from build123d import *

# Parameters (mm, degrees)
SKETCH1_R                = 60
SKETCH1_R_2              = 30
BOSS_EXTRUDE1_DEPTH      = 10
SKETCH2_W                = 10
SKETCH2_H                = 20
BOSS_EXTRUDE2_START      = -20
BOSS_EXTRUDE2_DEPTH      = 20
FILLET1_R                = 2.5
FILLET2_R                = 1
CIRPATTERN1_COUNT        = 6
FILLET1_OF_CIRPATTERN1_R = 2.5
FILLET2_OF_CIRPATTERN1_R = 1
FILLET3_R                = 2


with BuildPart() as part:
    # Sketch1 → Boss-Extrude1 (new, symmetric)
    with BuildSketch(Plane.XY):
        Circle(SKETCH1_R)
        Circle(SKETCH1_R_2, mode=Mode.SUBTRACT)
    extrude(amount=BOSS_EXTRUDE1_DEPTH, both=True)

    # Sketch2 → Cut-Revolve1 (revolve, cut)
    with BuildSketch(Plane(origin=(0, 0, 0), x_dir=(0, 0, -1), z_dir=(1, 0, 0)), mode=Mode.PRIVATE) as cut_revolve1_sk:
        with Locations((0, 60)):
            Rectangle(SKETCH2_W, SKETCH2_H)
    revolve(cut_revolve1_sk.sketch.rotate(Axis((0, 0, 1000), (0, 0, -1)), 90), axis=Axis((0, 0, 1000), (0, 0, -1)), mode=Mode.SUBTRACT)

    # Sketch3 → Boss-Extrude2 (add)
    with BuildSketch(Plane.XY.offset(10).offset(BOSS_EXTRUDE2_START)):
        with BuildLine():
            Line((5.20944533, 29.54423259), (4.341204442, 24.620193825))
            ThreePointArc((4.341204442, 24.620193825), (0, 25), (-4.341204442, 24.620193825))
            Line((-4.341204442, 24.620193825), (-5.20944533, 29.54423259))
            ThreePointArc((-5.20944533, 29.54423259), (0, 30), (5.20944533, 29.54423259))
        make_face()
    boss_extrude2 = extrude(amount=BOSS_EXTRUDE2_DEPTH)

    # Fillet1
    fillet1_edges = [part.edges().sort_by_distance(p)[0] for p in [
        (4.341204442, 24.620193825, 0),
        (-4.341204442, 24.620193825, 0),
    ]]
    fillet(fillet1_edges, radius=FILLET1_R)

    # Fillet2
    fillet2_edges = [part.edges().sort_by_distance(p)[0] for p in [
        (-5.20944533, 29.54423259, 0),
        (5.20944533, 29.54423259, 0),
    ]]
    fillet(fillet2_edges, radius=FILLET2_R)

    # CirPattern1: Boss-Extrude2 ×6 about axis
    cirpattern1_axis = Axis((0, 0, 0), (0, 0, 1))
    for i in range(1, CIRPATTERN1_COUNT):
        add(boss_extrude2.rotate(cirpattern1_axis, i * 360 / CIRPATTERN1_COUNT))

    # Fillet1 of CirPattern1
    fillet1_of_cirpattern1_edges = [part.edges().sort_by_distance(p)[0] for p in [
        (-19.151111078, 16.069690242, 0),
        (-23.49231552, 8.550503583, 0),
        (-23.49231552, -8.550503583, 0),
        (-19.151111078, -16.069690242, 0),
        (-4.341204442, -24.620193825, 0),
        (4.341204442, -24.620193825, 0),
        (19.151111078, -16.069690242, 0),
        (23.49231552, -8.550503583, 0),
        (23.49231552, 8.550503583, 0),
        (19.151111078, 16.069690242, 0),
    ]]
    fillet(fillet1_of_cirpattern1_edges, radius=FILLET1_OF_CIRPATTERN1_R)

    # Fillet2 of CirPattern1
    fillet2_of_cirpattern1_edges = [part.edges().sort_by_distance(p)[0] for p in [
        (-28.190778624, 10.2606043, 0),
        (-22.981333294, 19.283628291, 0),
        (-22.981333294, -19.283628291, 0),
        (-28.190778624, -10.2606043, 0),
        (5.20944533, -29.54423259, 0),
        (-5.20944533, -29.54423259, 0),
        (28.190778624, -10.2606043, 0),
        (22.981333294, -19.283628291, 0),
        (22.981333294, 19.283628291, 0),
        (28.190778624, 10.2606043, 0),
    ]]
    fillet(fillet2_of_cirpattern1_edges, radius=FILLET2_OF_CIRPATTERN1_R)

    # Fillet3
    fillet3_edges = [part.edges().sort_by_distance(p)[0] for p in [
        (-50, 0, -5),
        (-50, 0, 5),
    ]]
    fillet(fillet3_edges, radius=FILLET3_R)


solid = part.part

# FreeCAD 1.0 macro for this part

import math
import FreeCAD as App
import Part
import Sketcher

V = App.Vector
Q = App.Units.Quantity


def edges_at(feature, points):
    """Names of the edges that pass closest to the given points."""
    edges = feature.Shape.Edges
    near = lambda p: min(range(len(edges)), key=lambda i: edges[i].distToShape(Part.Vertex(*p))[0])
    return sorted({f"Edge{near(p) + 1}" for p in points})


def add_polygon(sketch, points):
    """Adds a closed chain of lines whose ends are joined by coincident constraints."""
    first, n = sketch.GeometryCount, len(points)
    for a, b in zip(points, points[1:] + points[:1]):
        sketch.addGeometry(Part.LineSegment(App.Vector(*a, 0), App.Vector(*b, 0)), False)
    for i in range(n):
        sketch.addConstraint(Sketcher.Constraint("Coincident", first + i, 2, first + (i + 1) % n, 1))

doc = App.newDocument("Part")
params = doc.addObject("Spreadsheet::Sheet", "Params")
for row, (alias, value) in enumerate([
    ("sketch1_diameter", "120 mm"),
    ("sketch1_diameter2", "60 mm"),
    ("pad1_length", "20 mm"),
    ("sketch2_width", "20 mm"),
    ("sketch2_height", "10 mm"),
    ("groove_angle", "360 deg"),
    ("sketch3_radius", "30 mm"),
    ("sketch3_radius2", "25 mm"),
    ("pad2_length", "20 mm"),
    ("fillet_radius", "2.5 mm"),
    ("fillet2_radius", "1 mm"),
    ("fillet3_radius", "2.5 mm"),
    ("fillet4_radius", "1 mm"),
    ("fillet5_radius", "2 mm"),
], start=1):
    params.set(f"A{row}", alias)
    params.set(f"B{row}", "=" + value)
    params.setAlias(f"B{row}", alias)

body = doc.addObject("PartDesign::Body", "Body")

sketch1 = body.newObject("Sketcher::SketchObject", "Sketch")
sketch1.AttachmentSupport = (doc.getObject("XY_Plane"), [""])
sketch1.MapMode = "FlatFace"
sketch1.addGeometry(Part.Circle(V(0, 0, 0), V(0, 0, 1), 60), False)
sketch1.addGeometry(Part.Circle(V(0, 0, 0), V(0, 0, 1), 30), False)
sketch1.addConstraint(Sketcher.Constraint("Coincident", 0, 3, -1, 1))
sketch1.addConstraint(Sketcher.Constraint("Coincident", 1, 3, -1, 1))
sketch1.addConstraint(Sketcher.Constraint("Diameter", 0, 120.0))
sketch1.addConstraint(Sketcher.Constraint("Diameter", 1, 60.0))
sketch1.setExpression("Constraints[2]", "Params.sketch1_diameter")
sketch1.setExpression("Constraints[3]", "Params.sketch1_diameter2")
pad1 = body.newObject("PartDesign::Pad", "Pad")
pad1.Profile = sketch1
pad1.setExpression("Length", "Params.pad1_length")
pad1.Midplane = True

sketch2 = body.newObject("Sketcher::SketchObject", "Sketch001")
sketch2.AttachmentSupport = (doc.getObject("YZ_Plane"), [""])
sketch2.MapMode = "FlatFace"
add_polygon(sketch2, [(70, 5), (50, 5), (50, -5), (70, -5)])
sketch2.addConstraint(Sketcher.Constraint("Horizontal", 0))
sketch2.addConstraint(Sketcher.Constraint("Vertical", 1))
sketch2.addConstraint(Sketcher.Constraint("Horizontal", 2))
sketch2.addConstraint(Sketcher.Constraint("Vertical", 3))
sketch2.addConstraint(Sketcher.Constraint("DistanceX", 0, 2, 0, 1, 20.0))
sketch2.addConstraint(Sketcher.Constraint("DistanceY", 1, 2, 1, 1, 10.0))
sketch2.addConstraint(Sketcher.Constraint("DistanceX", -1, 1, 0, 2, 50.0))
sketch2.addConstraint(Sketcher.Constraint("DistanceY", -1, 1, 0, 2, 5.0))
sketch2.setExpression("Constraints[8]", "Params.sketch2_width")
sketch2.setExpression("Constraints[9]", "Params.sketch2_height")
groove = body.newObject("PartDesign::Groove", "Groove")
groove.Profile = sketch2
groove.ReferenceAxis = (sketch2, ["V_Axis"])
groove.setExpression("Angle", "Params.groove_angle")

sketch3 = body.newObject("Sketcher::SketchObject", "Sketch002")
sketch3.AttachmentSupport = (doc.getObject("XY_Plane"), [""])
sketch3.MapMode = "FlatFace"
sketch3.AttachmentOffset = App.Placement(V(0, 0, -10), App.Rotation())
sketch3.addGeometry(Part.LineSegment(V(4.3, 24.6, 0), V(5.2, 29.5, 0)), False)
sketch3.addGeometry(Part.ArcOfCircle(Part.Circle(V(0, 0, 0), V(0, 0, 1), 30), math.radians(80), math.radians(100)), False)
sketch3.addGeometry(Part.LineSegment(V(-5.2, 29.5, 0), V(-4.3, 24.6, 0)), False)
sketch3.addGeometry(Part.ArcOfCircle(Part.Circle(V(0, 0, 0), V(0, 0, 1), 25), math.radians(80), math.radians(100)), False)
sketch3.addConstraint(Sketcher.Constraint("Coincident", 0, 2, 1, 1))
sketch3.addConstraint(Sketcher.Constraint("Coincident", 1, 2, 2, 1))
sketch3.addConstraint(Sketcher.Constraint("Coincident", 2, 2, 3, 2))
sketch3.addConstraint(Sketcher.Constraint("Coincident", 3, 1, 0, 1))
sketch3.addConstraint(Sketcher.Constraint("Coincident", 1, 3, -1, 1))
sketch3.addConstraint(Sketcher.Constraint("Coincident", 3, 3, -1, 1))
sketch3.addConstraint(Sketcher.Constraint("Horizontal", 0, 2, 1, 2))
sketch3.addConstraint(Sketcher.Constraint("Horizontal", 2, 2, 3, 1))
sketch3.addConstraint(Sketcher.Constraint("Radius", 1, 30.0))
sketch3.addConstraint(Sketcher.Constraint("Radius", 3, 25.0))
sketch3.addConstraint(Sketcher.Constraint("Angle", 0, Q("80 deg")))
sketch3.addConstraint(Sketcher.Constraint("DistanceX", 1, 2, 0, 2, 10.418891))
sketch3.setExpression("Constraints[8]", "Params.sketch3_radius")
sketch3.setExpression("Constraints[9]", "Params.sketch3_radius2")
pad2 = body.newObject("PartDesign::Pad", "Pad001")
pad2.Profile = sketch3
pad2.setExpression("Length", "Params.pad2_length")
doc.recompute()

fillet = body.newObject("PartDesign::Fillet", "Fillet")
fillet.Base = (pad2, edges_at(pad2, [(4.341, 24.62, 0), (-4.341, 24.62, 0)]))
fillet.setExpression("Radius", "Params.fillet_radius")
doc.recompute()

fillet2 = body.newObject("PartDesign::Fillet", "Fillet001")
fillet2.Base = (fillet, edges_at(fillet, [(-5.209, 29.544, 0), (5.209, 29.544, 0)]))
fillet2.setExpression("Radius", "Params.fillet2_radius")
doc.recompute()

polarpattern = body.newObject("PartDesign::PolarPattern", "PolarPattern")
polarpattern.Originals = [pad2]
polarpattern.Axis = (doc.getObject("Z_Axis"), [""])
polarpattern.Angle = 360
polarpattern.Occurrences = 6
body.Tip = polarpattern
doc.recompute()

fillet3 = body.newObject("PartDesign::Fillet", "Fillet002")
fillet3.Base = (polarpattern, edges_at(polarpattern, [
    (-19.151, 16.07, 0),
    (-23.492, 8.551, 0),
    (-23.492, -8.551, 0),
    (-19.151, -16.07, 0),
    (-4.341, -24.62, 0),
    (4.341, -24.62, 0),
    (19.151, -16.07, 0),
    (23.492, -8.551, 0),
    (23.492, 8.551, 0),
    (19.151, 16.07, 0),
]))
fillet3.setExpression("Radius", "Params.fillet3_radius")
doc.recompute()

fillet4 = body.newObject("PartDesign::Fillet", "Fillet003")
fillet4.Base = (fillet3, edges_at(fillet3, [
    (-28.191, 10.261, 0),
    (-22.981, 19.284, 0),
    (-22.981, -19.284, 0),
    (-28.191, -10.261, 0),
    (5.209, -29.544, 0),
    (-5.209, -29.544, 0),
    (28.191, -10.261, 0),
    (22.981, -19.284, 0),
    (22.981, 19.284, 0),
    (28.191, 10.261, 0),
]))
fillet4.setExpression("Radius", "Params.fillet4_radius")
doc.recompute()

fillet5 = body.newObject("PartDesign::Fillet", "Fillet004")
fillet5.Base = (fillet4, edges_at(fillet4, [(-50, 0, -5), (-50, 0, 5)]))
fillet5.setExpression("Radius", "Params.fillet5_radius")

doc.recompute()
